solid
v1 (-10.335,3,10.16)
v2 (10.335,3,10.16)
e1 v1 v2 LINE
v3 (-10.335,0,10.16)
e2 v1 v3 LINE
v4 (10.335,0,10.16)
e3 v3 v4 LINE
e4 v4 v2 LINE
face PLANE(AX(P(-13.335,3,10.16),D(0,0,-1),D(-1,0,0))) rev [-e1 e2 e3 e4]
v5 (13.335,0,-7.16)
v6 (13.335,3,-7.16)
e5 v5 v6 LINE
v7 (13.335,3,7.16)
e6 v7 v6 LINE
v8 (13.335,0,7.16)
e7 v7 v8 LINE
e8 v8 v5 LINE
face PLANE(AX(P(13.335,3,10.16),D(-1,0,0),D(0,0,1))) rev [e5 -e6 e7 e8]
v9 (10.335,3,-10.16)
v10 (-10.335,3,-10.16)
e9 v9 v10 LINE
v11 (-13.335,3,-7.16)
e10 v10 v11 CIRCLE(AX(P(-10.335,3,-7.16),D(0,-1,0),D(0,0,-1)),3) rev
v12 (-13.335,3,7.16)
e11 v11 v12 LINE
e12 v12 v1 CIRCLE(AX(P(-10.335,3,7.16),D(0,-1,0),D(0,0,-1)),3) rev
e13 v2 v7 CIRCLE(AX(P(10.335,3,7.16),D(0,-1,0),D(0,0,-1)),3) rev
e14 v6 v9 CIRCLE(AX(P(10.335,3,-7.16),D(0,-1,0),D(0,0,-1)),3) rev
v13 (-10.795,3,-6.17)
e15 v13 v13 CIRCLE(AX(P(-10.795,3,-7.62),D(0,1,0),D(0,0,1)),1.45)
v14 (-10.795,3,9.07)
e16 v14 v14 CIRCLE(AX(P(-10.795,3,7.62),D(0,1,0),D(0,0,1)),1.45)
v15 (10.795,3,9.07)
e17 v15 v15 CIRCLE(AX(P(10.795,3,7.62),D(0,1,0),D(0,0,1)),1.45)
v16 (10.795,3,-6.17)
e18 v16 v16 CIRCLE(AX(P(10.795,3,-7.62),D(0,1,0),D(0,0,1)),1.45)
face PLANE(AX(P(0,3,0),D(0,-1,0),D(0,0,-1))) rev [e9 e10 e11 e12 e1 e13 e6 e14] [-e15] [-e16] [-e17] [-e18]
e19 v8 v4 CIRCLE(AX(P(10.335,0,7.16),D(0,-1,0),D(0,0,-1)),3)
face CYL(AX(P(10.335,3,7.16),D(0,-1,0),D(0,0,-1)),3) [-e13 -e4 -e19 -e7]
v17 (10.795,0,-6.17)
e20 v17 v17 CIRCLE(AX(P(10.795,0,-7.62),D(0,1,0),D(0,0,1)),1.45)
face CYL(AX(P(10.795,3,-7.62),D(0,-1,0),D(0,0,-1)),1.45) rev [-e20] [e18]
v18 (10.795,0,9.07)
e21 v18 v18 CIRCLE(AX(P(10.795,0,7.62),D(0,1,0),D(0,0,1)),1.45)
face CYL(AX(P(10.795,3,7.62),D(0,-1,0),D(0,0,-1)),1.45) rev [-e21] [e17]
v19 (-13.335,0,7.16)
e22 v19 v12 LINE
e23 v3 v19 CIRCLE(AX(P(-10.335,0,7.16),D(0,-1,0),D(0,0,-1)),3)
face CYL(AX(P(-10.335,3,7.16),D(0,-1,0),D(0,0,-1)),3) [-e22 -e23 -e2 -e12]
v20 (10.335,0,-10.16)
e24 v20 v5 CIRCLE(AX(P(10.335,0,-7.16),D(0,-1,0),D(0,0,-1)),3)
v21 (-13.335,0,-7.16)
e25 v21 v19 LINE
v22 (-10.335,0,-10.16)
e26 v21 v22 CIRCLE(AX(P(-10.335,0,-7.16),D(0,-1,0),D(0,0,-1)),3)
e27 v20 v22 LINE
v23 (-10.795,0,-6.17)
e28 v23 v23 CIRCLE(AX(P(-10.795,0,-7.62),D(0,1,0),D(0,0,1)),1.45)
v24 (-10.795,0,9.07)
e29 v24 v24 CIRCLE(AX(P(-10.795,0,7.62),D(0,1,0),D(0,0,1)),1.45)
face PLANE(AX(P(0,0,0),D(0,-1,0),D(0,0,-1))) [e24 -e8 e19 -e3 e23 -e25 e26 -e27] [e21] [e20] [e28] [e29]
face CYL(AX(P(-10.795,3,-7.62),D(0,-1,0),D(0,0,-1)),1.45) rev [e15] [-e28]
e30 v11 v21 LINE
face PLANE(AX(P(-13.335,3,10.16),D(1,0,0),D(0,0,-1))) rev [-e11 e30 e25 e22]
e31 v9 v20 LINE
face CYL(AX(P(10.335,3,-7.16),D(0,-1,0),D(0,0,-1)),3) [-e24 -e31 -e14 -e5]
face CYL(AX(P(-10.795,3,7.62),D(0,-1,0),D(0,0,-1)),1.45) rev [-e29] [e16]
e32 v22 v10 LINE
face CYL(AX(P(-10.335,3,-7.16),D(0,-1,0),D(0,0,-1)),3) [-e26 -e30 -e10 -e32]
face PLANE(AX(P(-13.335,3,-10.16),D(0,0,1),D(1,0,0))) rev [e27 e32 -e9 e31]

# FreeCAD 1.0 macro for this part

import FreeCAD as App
import Part
import Sketcher

V = App.Vector
Q = App.Units.Quantity


def edges_at(feature, points):
    """Names of the edges that pass closest to the given points."""
    edges = feature.Shape.Edges
    near = lambda p: min(range(len(edges)), key=lambda i: edges[i].distToShape(Part.Vertex(*p))[0])
    return sorted({f"Edge{near(p) + 1}" for p in points})

doc = App.newDocument("Part")
body = doc.addObject("PartDesign::Body", "Body")

# Sketch on XZ plane
sketch1 = body.newObject("Sketcher::SketchObject", "Sketch")
sketch1.AttachmentSupport = (doc.getObject("XZ_Plane"), [""])
sketch1.MapMode = "FlatFace"
sketch1.addGeometry([
    Part.LineSegment(V(-13.335, -10.16, 0), V(-13.335, 10.16, 0)),  # 0
    Part.LineSegment(V(-13.335, 10.16, 0), V(13.335, 10.16, 0)),  # 1
    Part.LineSegment(V(13.335, 10.16, 0), V(13.335, -10.16, 0)),  # 2
    Part.LineSegment(V(13.335, -10.16, 0), V(-13.335, -10.16, 0)),  # 3
    Part.Circle(V(-10.795, 7.62, 0), V(0, 0, 1), 1.45),  # 4
    Part.Circle(V(10.795, 7.62, 0), V(0, 0, 1), 1.45),  # 5
    Part.Circle(V(-10.795, -7.62, 0), V(0, 0, 1), 1.45),  # 6
    Part.Circle(V(10.795, -7.62, 0), V(0, 0, 1), 1.45),  # 7
], False)
sketch1.addConstraint([
    Sketcher.Constraint("Coincident", 0, 2, 1, 1),
    Sketcher.Constraint("Coincident", 1, 2, 2, 1),
    Sketcher.Constraint("Coincident", 2, 2, 3, 1),
    Sketcher.Constraint("Coincident", 3, 2, 0, 1),
    Sketcher.Constraint("Vertical", 0),
    Sketcher.Constraint("Horizontal", 1),
    Sketcher.Constraint("Vertical", 2),
    Sketcher.Constraint("Horizontal", 3),
    Sketcher.Constraint("Equal", 4, 5),
    Sketcher.Constraint("Equal", 5, 6),
    Sketcher.Constraint("Equal", 6, 7),
    Sketcher.Constraint("Symmetric", 5, 3, 6, 3, -1, 1),
    Sketcher.Constraint("Symmetric", 4, 3, 7, 3, -1, 1),
    Sketcher.Constraint("Symmetric", 0, 2, 2, 2, -1, 1),
    Sketcher.Constraint("Symmetric", 4, 3, 5, 3, -2),
    Sketcher.Constraint("Diameter", 4, Q("2.9 mm")),
    Sketcher.Constraint("DistanceX", 1, 1, 1, 2, Q("26.67 mm")),
    Sketcher.Constraint("DistanceY", 0, 1, 0, 2, Q("20.32 mm")),
    Sketcher.Constraint("DistanceY", -1, 1, 4, 3, Q("7.62 mm")),
    Sketcher.Constraint("DistanceX", 4, 3, 5, 3, Q("21.59 mm")),
])
pad1 = body.newObject("PartDesign::Pad", "Pad")
pad1.Profile = sketch1
pad1.Length = 3
pad1.Reversed = True
doc.recompute()

fillet = body.newObject("PartDesign::Fillet", "Fillet")
fillet.Base = (pad1, edges_at(pad1, [
    (13.335, 1.5, 10.16),
    (-13.335, 1.5, 10.16),
    (-13.335, 1.5, -10.16),
    (13.335, 1.5, -10.16),
]))
fillet.Radius = 3

doc.recompute()
